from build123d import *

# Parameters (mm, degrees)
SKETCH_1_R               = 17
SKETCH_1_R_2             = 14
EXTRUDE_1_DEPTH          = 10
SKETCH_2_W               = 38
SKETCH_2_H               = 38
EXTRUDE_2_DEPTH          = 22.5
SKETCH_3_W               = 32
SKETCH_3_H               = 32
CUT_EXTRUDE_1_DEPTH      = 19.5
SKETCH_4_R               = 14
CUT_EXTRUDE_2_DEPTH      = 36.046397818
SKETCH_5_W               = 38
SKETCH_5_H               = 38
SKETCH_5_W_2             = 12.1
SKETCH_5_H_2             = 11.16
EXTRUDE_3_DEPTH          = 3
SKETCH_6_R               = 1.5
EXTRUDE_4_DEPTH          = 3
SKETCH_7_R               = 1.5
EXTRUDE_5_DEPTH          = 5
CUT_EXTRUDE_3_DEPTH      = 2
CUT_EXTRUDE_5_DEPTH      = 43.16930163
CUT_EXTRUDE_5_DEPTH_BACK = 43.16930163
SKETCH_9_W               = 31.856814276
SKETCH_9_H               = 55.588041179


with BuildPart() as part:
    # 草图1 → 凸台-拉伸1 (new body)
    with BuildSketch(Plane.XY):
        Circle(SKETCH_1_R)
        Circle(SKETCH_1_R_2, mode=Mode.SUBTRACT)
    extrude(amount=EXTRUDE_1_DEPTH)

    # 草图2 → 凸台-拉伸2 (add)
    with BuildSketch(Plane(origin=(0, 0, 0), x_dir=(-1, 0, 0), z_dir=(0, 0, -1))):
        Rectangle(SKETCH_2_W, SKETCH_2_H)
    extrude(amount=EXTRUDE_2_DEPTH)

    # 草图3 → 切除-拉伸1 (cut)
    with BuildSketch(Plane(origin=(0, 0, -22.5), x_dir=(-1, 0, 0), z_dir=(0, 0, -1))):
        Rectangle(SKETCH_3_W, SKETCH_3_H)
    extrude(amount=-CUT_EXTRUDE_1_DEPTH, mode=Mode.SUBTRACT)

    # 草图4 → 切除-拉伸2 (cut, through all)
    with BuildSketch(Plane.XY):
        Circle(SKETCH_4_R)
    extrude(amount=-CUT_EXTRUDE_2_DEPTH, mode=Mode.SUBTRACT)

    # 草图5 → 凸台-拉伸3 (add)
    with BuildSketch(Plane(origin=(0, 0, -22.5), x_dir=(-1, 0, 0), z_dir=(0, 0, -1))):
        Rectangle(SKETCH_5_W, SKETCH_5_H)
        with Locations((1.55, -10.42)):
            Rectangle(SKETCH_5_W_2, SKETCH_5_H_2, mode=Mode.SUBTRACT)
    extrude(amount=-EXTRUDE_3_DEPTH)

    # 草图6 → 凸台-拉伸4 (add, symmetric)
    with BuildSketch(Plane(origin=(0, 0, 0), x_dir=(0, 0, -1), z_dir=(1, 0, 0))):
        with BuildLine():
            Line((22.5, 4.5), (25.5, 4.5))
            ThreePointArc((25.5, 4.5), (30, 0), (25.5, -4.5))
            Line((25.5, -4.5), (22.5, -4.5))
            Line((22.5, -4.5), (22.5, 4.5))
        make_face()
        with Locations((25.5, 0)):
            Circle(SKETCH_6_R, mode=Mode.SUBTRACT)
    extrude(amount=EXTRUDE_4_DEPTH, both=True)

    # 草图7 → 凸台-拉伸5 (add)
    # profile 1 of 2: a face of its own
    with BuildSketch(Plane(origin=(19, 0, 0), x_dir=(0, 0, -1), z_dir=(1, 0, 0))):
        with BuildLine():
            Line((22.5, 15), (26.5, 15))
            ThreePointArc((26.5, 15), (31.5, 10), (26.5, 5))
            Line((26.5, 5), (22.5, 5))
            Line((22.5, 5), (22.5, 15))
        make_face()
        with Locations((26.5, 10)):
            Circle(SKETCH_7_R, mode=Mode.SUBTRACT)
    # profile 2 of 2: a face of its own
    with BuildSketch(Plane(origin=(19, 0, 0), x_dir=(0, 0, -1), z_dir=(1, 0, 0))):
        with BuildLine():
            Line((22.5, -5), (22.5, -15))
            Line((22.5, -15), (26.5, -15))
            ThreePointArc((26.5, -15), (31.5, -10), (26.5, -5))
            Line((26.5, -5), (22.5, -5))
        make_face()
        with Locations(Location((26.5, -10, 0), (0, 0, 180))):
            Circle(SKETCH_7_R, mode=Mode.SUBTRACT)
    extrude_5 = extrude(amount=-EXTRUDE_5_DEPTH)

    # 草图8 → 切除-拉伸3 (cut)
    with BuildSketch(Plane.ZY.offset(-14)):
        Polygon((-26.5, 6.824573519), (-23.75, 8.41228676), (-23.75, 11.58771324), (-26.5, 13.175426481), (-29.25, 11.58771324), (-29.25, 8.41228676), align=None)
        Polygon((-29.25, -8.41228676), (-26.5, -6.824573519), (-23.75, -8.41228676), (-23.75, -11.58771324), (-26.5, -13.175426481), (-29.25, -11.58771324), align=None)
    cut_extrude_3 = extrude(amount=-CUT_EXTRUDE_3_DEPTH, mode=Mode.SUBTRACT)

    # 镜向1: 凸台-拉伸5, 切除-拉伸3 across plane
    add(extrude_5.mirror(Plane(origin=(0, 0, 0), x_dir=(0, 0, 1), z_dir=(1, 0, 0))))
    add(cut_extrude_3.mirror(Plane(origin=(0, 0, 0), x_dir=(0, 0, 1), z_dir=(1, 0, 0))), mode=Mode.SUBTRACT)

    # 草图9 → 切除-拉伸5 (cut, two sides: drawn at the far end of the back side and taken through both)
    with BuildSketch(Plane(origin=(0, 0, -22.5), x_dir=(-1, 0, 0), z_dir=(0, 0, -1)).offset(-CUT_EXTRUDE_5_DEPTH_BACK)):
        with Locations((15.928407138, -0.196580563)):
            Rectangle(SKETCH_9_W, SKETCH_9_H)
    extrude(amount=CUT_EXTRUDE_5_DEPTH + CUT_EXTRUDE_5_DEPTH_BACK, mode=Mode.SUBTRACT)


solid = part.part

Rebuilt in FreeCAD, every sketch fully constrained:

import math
import FreeCAD as App
import Part
import Sketcher

V = App.Vector
Q = App.Units.Quantity


def add_polygon(sketch, points):
    """Adds a closed chain of lines whose ends are joined by coincident constraints."""
    first, n = sketch.GeometryCount, len(points)
    for a, b in zip(points, points[1:] + points[:1]):
        sketch.addGeometry(Part.LineSegment(App.Vector(*a, 0), App.Vector(*b, 0)), False)
    for i in range(n):
        sketch.addConstraint(Sketcher.Constraint("Coincident", first + i, 2, first + (i + 1) % n, 1))

doc = App.newDocument("Part")
body = doc.addObject("PartDesign::Body", "Body")

# Sketch on XY plane
sketch1 = body.newObject("Sketcher::SketchObject", "Sketch")
sketch1.AttachmentSupport = (doc.getObject("XY_Plane"), [""])
sketch1.MapMode = "FlatFace"
sketch1.addGeometry(Part.Circle(V(0, 0, 0), V(0, 0, 1), 17), False)
sketch1.addGeometry(Part.Circle(V(0, 0, 0), V(0, 0, 1), 14), False)
sketch1.addConstraint(Sketcher.Constraint("Coincident", 0, 3, -1, 1))
sketch1.addConstraint(Sketcher.Constraint("Coincident", 1, 3, -1, 1))
sketch1.addConstraint(Sketcher.Constraint("Diameter", 0, 34.0))
sketch1.addConstraint(Sketcher.Constraint("Diameter", 1, 28.0))
pad1 = body.newObject("PartDesign::Pad", "Pad")
pad1.Profile = sketch1
pad1.Length = 10

# Sketch on XY plane
sketch2 = body.newObject("Sketcher::SketchObject", "Sketch001")
sketch2.AttachmentSupport = (doc.getObject("XY_Plane"), [""])
sketch2.MapMode = "FlatFace"
add_polygon(sketch2, [(19, 19), (19, -19), (-19, -19), (-19, 19)])  # lines 0-3
sketch2.addConstraint(Sketcher.Constraint("Vertical", 0))
sketch2.addConstraint(Sketcher.Constraint("Horizontal", 1))
sketch2.addConstraint(Sketcher.Constraint("Vertical", 2))
sketch2.addConstraint(Sketcher.Constraint("Horizontal", 3))
sketch2.addConstraint(Sketcher.Constraint("Symmetric", 0, 2, 2, 2, -1, 1))
sketch2.addConstraint(Sketcher.Constraint("Equal", 3, 0))
sketch2.addConstraint(Sketcher.Constraint("DistanceX", 1, 2, 1, 1, 38.0))
pad2 = body.newObject("PartDesign::Pad", "Pad001")
pad2.Profile = sketch2
pad2.Length = 22.5
pad2.Reversed = True

# Sketch on XY plane
sketch3 = body.newObject("Sketcher::SketchObject", "Sketch002")
sketch3.AttachmentSupport = (doc.getObject("XY_Plane"), [""])
sketch3.MapMode = "FlatFace"
sketch3.AttachmentOffset = App.Placement(V(0, 0, -22.5), App.Rotation())
add_polygon(sketch3, [(16, 16), (16, -16), (-16, -16), (-16, 16)])  # lines 0-3
sketch3.addConstraint(Sketcher.Constraint("Vertical", 0))
sketch3.addConstraint(Sketcher.Constraint("Horizontal", 1))
sketch3.addConstraint(Sketcher.Constraint("Vertical", 2))
sketch3.addConstraint(Sketcher.Constraint("Horizontal", 3))
sketch3.addConstraint(Sketcher.Constraint("Symmetric", 0, 2, 2, 2, -1, 1))
sketch3.addConstraint(Sketcher.Constraint("Equal", 3, 0))
sketch3.addConstraint(Sketcher.Constraint("DistanceX", 1, 2, 1, 1, 32.0))
pocket1 = body.newObject("PartDesign::Pocket", "Pocket")
pocket1.Profile = sketch3
pocket1.Length = 19.5
pocket1.Reversed = True

# Sketch on XY plane
sketch4 = body.newObject("Sketcher::SketchObject", "Sketch003")
sketch4.AttachmentSupport = (doc.getObject("XY_Plane"), [""])
sketch4.MapMode = "FlatFace"
sketch4.addGeometry(Part.Circle(V(0, 0, 0), V(0, 0, 1), 14), False)
sketch4.addConstraint(Sketcher.Constraint("Coincident", 0, 3, -1, 1))
sketch4.addConstraint(Sketcher.Constraint("Diameter", 0, 28.0))
pocket2 = body.newObject("PartDesign::Pocket", "Pocket001")
pocket2.Profile = sketch4
pocket2.Type = "ThroughAll"

# Sketch on XY plane
sketch5 = body.newObject("Sketcher::SketchObject", "Sketch004")
sketch5.AttachmentSupport = (doc.getObject("XY_Plane"), [""])
sketch5.MapMode = "FlatFace"
sketch5.AttachmentOffset = App.Placement(V(0, 0, -22.5), App.Rotation())
add_polygon(sketch5, [(19, 19), (19, -19), (-19, -19), (-19, 19)])  # lines 0-3
add_polygon(sketch5, [(-8, -16), (4, -16), (4, -5), (-8, -5)])  # lines 4-7
sketch5.addConstraint(Sketcher.Constraint("Vertical", 0))
sketch5.addConstraint(Sketcher.Constraint("Horizontal", 1))
sketch5.addConstraint(Sketcher.Constraint("Vertical", 2))
sketch5.addConstraint(Sketcher.Constraint("Horizontal", 3))
sketch5.addConstraint(Sketcher.Constraint("Horizontal", 4))
sketch5.addConstraint(Sketcher.Constraint("Vertical", 5))
sketch5.addConstraint(Sketcher.Constraint("Horizontal", 6))
sketch5.addConstraint(Sketcher.Constraint("Vertical", 7))
sketch5.addConstraint(Sketcher.Constraint("Symmetric", 0, 2, 2, 2, -1, 1))
sketch5.addConstraint(Sketcher.Constraint("Equal", 3, 0))
sketch5.addConstraint(Sketcher.Constraint("DistanceX", 1, 2, 1, 1, 38.0))
sketch5.addConstraint(Sketcher.Constraint("DistanceX", 4, 1, 4, 2, 12.1))
sketch5.addConstraint(Sketcher.Constraint("DistanceY", 4, 2, -1, 1, 16.0))
sketch5.addConstraint(Sketcher.Constraint("DistanceY", 5, 1, 5, 2, 11.16))
sketch5.addConstraint(Sketcher.Constraint("DistanceX", -1, 1, 4, 2, 4.5))
pad3 = body.newObject("PartDesign::Pad", "Pad002")
pad3.Profile = sketch5
pad3.Length = 3

# Sketch on YZ plane
sketch6 = body.newObject("Sketcher::SketchObject", "Sketch005")
sketch6.AttachmentSupport = (doc.getObject("YZ_Plane"), [""])
sketch6.MapMode = "FlatFace"
sketch6.addGeometry(Part.LineSegment(V(4.5, -25.5, 0), V(4.5, -22.5, 0)), False)
sketch6.addGeometry(Part.LineSegment(V(4.5, -22.5, 0), V(-4.5, -22.5, 0)), False)
sketch6.addGeometry(Part.LineSegment(V(-4.5, -22.5, 0), V(-4.5, -25.5, 0)), False)
sketch6.addGeometry(Part.ArcOfCircle(Part.Circle(V(0, -25.5, 0), V(0, 0, 1), 4.5), math.radians(180), math.radians(360)), False)
sketch6.addGeometry(Part.Circle(V(0, -25.5, 0), V(0, 0, 1), 1.5), False)
sketch6.addConstraint(Sketcher.Constraint("Coincident", 0, 2, 1, 1))
sketch6.addConstraint(Sketcher.Constraint("Coincident", 1, 2, 2, 1))
sketch6.addConstraint(Sketcher.Constraint("Tangent", 2, 2, 3, 1))
sketch6.addConstraint(Sketcher.Constraint("Tangent", 3, 2, 0, 1))
sketch6.addConstraint(Sketcher.Constraint("Vertical", 0))
sketch6.addConstraint(Sketcher.Constraint("Horizontal", 1))
sketch6.addConstraint(Sketcher.Constraint("Vertical", 2))
sketch6.addConstraint(Sketcher.Constraint("Coincident", 4, 3, 3, 3))
sketch6.addConstraint(Sketcher.Constraint("PointOnObject", 3, 3, -2))
sketch6.addConstraint(Sketcher.Constraint("Diameter", 4, 3.0))
sketch6.addConstraint(Sketcher.Constraint("Radius", 3, 4.5))
sketch6.addConstraint(Sketcher.Constraint("DistanceY", 0, 1, 0, 2, 3.0))
sketch6.addConstraint(Sketcher.Constraint("DistanceY", 3, 3, -1, 1, 25.5))
pad4 = body.newObject("PartDesign::Pad", "Pad003")
pad4.Profile = sketch6
pad4.Length = 6
pad4.Midplane = True

# Sketch on YZ plane
sketch7 = body.newObject("Sketcher::SketchObject", "Sketch006")
sketch7.AttachmentSupport = (doc.getObject("YZ_Plane"), [""])
sketch7.MapMode = "FlatFace"
sketch7.AttachmentOffset = App.Placement(V(0, 0, 19), App.Rotation())
sketch7.addGeometry(Part.LineSegment(V(15, -26.5, 0), V(15, -22.5, 0)), False)
sketch7.addGeometry(Part.LineSegment(V(15, -22.5, 0), V(5, -22.5, 0)), False)
sketch7.addGeometry(Part.LineSegment(V(5, -22.5, 0), V(5, -26.5, 0)), False)
sketch7.addGeometry(Part.ArcOfCircle(Part.Circle(V(10, -26.5, 0), V(0, 0, 1), 5), math.radians(180), math.radians(360)), False)
sketch7.addGeometry(Part.Circle(V(10, -26.5, 0), V(0, 0, 1), 1.5), False)
sketch7.addGeometry(Part.LineSegment(V(-5, -22.5, 0), V(-15, -22.5, 0)), False)
sketch7.addGeometry(Part.LineSegment(V(-15, -22.5, 0), V(-15, -26.5, 0)), False)
sketch7.addGeometry(Part.ArcOfCircle(Part.Circle(V(-10, -26.5, 0), V(0, 0, 1), 5), math.radians(180), math.radians(360)), False)
sketch7.addGeometry(Part.LineSegment(V(-5, -26.5, 0), V(-5, -22.5, 0)), False)
sketch7.addGeometry(Part.Circle(V(-10, -26.5, 0), V(0, 0, 1), 1.5), False)
sketch7.addConstraint(Sketcher.Constraint("Coincident", 0, 2, 1, 1))
sketch7.addConstraint(Sketcher.Constraint("Coincident", 1, 2, 2, 1))
sketch7.addConstraint(Sketcher.Constraint("Tangent", 2, 2, 3, 1))
sketch7.addConstraint(Sketcher.Constraint("Tangent", 3, 2, 0, 1))
sketch7.addConstraint(Sketcher.Constraint("Coincident", 5, 2, 6, 1))
sketch7.addConstraint(Sketcher.Constraint("Tangent", 6, 2, 7, 1))
sketch7.addConstraint(Sketcher.Constraint("Tangent", 7, 2, 8, 1))
sketch7.addConstraint(Sketcher.Constraint("Coincident", 8, 2, 5, 1))
sketch7.addConstraint(Sketcher.Constraint("Vertical", 0))
sketch7.addConstraint(Sketcher.Constraint("Horizontal", 1))
sketch7.addConstraint(Sketcher.Constraint("Vertical", 2))
sketch7.addConstraint(Sketcher.Constraint("Horizontal", 5))
sketch7.addConstraint(Sketcher.Constraint("Vertical", 6))
sketch7.addConstraint(Sketcher.Constraint("Vertical", 8))
sketch7.addConstraint(Sketcher.Constraint("Coincident", 4, 3, 3, 3))
sketch7.addConstraint(Sketcher.Constraint("Coincident", 9, 3, 7, 3))
sketch7.addConstraint(Sketcher.Constraint("Equal", 3, 7))
sketch7.addConstraint(Sketcher.Constraint("Equal", 4, 9))
sketch7.addConstraint(Sketcher.Constraint("Symmetric", 3, 3, 7, 3, -2))
sketch7.addConstraint(Sketcher.Constraint("Horizontal", 1, 2, 5, 2))
sketch7.addConstraint(Sketcher.Constraint("Diameter", 4, 3.0))
sketch7.addConstraint(Sketcher.Constraint("Radius", 3, 5.0))
sketch7.addConstraint(Sketcher.Constraint("DistanceY", 0, 1, 0, 2, 4.0))
sketch7.addConstraint(Sketcher.Constraint("DistanceX", -1, 1, 3, 3, 10.0))
sketch7.addConstraint(Sketcher.Constraint("DistanceY", 3, 3, -1, 1, 26.5))
pad5 = body.newObject("PartDesign::Pad", "Pad004")
pad5.Profile = sketch7
pad5.Length = 5
pad5.Reversed = True

# Sketch on YZ plane
sketch8 = body.newObject("Sketcher::SketchObject", "Sketch007")
sketch8.AttachmentSupport = (doc.getObject("YZ_Plane"), [""])
sketch8.MapMode = "FlatFace"
sketch8.AttachmentOffset = App.Placement(V(0, 0, 14), App.Rotation())
add_polygon(sketch8, [(6.8, -26.5), (8.4, -23.8), (11.6, -23.8), (13.2, -26.5), (11.6, -29.2), (8.4, -29.2)])  # lines 0-5
add_polygon(sketch8, [(-6.8, -26.5), (-8.4, -29.2), (-11.6, -29.2), (-13.2, -26.5), (-11.6, -23.8), (-8.4, -23.8)])  # lines 6-11
sketch8.addConstraint(Sketcher.Constraint("Horizontal", 1))
sketch8.addConstraint(Sketcher.Constraint("Horizontal", 4))
sketch8.addConstraint(Sketcher.Constraint("Horizontal", 7))
sketch8.addConstraint(Sketcher.Constraint("Horizontal", 10))
sketch8.addConstraint(Sketcher.Constraint("Symmetric", 4, 2, 6, 2, -2))
sketch8.addConstraint(Sketcher.Constraint("Symmetric", 2, 2, 8, 2, -2))
sketch8.addConstraint(Sketcher.Constraint("Symmetric", 1, 2, 9, 2, -2))
sketch8.addConstraint(Sketcher.Constraint("Symmetric", 5, 2, 11, 2, -2))
sketch8.addConstraint(Sketcher.Constraint("Parallel", 0, 3))
sketch8.addConstraint(Sketcher.Constraint("Parallel", 2, 5))
sketch8.addConstraint(Sketcher.Constraint("Parallel", 3, 6))
sketch8.addConstraint(Sketcher.Constraint("Parallel", 5, 8))
sketch8.addConstraint(Sketcher.Constraint("Parallel", 8, 11))
sketch8.addConstraint(Sketcher.Constraint("Horizontal", 2, 2, 5, 2))
sketch8.addConstraint(Sketcher.Constraint("Vertical", 1, 2, 3, 2))
sketch8.addConstraint(Sketcher.Constraint("Angle", 0, Q("60 deg")))
sketch8.addConstraint(Sketcher.Constraint("DistanceX", 6, 2, 3, 2, 20.0))
sketch8.addConstraint(Sketcher.Constraint("DistanceY", 2, 2, -1, 1, 26.5))
sketch8.addConstraint(Sketcher.Constraint("DistanceY", 3, 2, 1, 2, 5.5))
sketch8.addConstraint(Sketcher.Constraint("DistanceX", 1, 1, 1, 2, 3.175426))
pocket3 = body.newObject("PartDesign::Pocket", "Pocket002")
pocket3.Profile = sketch8
pocket3.Length = 2
pocket3.Reversed = True
doc.recompute()

mirrored = body.newObject("PartDesign::Mirrored", "Mirrored")
mirrored.Originals = [pad5, pocket3]
mirrored.MirrorPlane = (doc.getObject("YZ_Plane"), [""])
body.Tip = mirrored

# Sketch on XY plane
sketch9 = body.newObject("Sketcher::SketchObject", "Sketch008")
sketch9.AttachmentSupport = (doc.getObject("XY_Plane"), [""])
sketch9.MapMode = "FlatFace"
sketch9.AttachmentOffset = App.Placement(V(0, 0, -22.5), App.Rotation())
add_polygon(sketch9, [(0, 28), (0, -28), (-32, -28), (-32, 28)])  # lines 0-3
sketch9.addConstraint(Sketcher.Constraint("Vertical", 0))
sketch9.addConstraint(Sketcher.Constraint("Horizontal", 1))
sketch9.addConstraint(Sketcher.Constraint("Vertical", 2))
sketch9.addConstraint(Sketcher.Constraint("Horizontal", 3))
sketch9.addConstraint(Sketcher.Constraint("PointOnObject", 0, 2, -2))
sketch9.addConstraint(Sketcher.Constraint("DistanceY", 0, 2, 0, 1, 55.588041))
sketch9.addConstraint(Sketcher.Constraint("DistanceY", 0, 2, -1, 1, 27.990601))
sketch9.addConstraint(Sketcher.Constraint("DistanceX", 1, 2, 1, 1, 31.856814))
pocket4 = body.newObject("PartDesign::Pocket", "Pocket003")
pocket4.Profile = sketch9
pocket4.Type = "ThroughAll"
pocket4.Midplane = True

doc.recompute()
